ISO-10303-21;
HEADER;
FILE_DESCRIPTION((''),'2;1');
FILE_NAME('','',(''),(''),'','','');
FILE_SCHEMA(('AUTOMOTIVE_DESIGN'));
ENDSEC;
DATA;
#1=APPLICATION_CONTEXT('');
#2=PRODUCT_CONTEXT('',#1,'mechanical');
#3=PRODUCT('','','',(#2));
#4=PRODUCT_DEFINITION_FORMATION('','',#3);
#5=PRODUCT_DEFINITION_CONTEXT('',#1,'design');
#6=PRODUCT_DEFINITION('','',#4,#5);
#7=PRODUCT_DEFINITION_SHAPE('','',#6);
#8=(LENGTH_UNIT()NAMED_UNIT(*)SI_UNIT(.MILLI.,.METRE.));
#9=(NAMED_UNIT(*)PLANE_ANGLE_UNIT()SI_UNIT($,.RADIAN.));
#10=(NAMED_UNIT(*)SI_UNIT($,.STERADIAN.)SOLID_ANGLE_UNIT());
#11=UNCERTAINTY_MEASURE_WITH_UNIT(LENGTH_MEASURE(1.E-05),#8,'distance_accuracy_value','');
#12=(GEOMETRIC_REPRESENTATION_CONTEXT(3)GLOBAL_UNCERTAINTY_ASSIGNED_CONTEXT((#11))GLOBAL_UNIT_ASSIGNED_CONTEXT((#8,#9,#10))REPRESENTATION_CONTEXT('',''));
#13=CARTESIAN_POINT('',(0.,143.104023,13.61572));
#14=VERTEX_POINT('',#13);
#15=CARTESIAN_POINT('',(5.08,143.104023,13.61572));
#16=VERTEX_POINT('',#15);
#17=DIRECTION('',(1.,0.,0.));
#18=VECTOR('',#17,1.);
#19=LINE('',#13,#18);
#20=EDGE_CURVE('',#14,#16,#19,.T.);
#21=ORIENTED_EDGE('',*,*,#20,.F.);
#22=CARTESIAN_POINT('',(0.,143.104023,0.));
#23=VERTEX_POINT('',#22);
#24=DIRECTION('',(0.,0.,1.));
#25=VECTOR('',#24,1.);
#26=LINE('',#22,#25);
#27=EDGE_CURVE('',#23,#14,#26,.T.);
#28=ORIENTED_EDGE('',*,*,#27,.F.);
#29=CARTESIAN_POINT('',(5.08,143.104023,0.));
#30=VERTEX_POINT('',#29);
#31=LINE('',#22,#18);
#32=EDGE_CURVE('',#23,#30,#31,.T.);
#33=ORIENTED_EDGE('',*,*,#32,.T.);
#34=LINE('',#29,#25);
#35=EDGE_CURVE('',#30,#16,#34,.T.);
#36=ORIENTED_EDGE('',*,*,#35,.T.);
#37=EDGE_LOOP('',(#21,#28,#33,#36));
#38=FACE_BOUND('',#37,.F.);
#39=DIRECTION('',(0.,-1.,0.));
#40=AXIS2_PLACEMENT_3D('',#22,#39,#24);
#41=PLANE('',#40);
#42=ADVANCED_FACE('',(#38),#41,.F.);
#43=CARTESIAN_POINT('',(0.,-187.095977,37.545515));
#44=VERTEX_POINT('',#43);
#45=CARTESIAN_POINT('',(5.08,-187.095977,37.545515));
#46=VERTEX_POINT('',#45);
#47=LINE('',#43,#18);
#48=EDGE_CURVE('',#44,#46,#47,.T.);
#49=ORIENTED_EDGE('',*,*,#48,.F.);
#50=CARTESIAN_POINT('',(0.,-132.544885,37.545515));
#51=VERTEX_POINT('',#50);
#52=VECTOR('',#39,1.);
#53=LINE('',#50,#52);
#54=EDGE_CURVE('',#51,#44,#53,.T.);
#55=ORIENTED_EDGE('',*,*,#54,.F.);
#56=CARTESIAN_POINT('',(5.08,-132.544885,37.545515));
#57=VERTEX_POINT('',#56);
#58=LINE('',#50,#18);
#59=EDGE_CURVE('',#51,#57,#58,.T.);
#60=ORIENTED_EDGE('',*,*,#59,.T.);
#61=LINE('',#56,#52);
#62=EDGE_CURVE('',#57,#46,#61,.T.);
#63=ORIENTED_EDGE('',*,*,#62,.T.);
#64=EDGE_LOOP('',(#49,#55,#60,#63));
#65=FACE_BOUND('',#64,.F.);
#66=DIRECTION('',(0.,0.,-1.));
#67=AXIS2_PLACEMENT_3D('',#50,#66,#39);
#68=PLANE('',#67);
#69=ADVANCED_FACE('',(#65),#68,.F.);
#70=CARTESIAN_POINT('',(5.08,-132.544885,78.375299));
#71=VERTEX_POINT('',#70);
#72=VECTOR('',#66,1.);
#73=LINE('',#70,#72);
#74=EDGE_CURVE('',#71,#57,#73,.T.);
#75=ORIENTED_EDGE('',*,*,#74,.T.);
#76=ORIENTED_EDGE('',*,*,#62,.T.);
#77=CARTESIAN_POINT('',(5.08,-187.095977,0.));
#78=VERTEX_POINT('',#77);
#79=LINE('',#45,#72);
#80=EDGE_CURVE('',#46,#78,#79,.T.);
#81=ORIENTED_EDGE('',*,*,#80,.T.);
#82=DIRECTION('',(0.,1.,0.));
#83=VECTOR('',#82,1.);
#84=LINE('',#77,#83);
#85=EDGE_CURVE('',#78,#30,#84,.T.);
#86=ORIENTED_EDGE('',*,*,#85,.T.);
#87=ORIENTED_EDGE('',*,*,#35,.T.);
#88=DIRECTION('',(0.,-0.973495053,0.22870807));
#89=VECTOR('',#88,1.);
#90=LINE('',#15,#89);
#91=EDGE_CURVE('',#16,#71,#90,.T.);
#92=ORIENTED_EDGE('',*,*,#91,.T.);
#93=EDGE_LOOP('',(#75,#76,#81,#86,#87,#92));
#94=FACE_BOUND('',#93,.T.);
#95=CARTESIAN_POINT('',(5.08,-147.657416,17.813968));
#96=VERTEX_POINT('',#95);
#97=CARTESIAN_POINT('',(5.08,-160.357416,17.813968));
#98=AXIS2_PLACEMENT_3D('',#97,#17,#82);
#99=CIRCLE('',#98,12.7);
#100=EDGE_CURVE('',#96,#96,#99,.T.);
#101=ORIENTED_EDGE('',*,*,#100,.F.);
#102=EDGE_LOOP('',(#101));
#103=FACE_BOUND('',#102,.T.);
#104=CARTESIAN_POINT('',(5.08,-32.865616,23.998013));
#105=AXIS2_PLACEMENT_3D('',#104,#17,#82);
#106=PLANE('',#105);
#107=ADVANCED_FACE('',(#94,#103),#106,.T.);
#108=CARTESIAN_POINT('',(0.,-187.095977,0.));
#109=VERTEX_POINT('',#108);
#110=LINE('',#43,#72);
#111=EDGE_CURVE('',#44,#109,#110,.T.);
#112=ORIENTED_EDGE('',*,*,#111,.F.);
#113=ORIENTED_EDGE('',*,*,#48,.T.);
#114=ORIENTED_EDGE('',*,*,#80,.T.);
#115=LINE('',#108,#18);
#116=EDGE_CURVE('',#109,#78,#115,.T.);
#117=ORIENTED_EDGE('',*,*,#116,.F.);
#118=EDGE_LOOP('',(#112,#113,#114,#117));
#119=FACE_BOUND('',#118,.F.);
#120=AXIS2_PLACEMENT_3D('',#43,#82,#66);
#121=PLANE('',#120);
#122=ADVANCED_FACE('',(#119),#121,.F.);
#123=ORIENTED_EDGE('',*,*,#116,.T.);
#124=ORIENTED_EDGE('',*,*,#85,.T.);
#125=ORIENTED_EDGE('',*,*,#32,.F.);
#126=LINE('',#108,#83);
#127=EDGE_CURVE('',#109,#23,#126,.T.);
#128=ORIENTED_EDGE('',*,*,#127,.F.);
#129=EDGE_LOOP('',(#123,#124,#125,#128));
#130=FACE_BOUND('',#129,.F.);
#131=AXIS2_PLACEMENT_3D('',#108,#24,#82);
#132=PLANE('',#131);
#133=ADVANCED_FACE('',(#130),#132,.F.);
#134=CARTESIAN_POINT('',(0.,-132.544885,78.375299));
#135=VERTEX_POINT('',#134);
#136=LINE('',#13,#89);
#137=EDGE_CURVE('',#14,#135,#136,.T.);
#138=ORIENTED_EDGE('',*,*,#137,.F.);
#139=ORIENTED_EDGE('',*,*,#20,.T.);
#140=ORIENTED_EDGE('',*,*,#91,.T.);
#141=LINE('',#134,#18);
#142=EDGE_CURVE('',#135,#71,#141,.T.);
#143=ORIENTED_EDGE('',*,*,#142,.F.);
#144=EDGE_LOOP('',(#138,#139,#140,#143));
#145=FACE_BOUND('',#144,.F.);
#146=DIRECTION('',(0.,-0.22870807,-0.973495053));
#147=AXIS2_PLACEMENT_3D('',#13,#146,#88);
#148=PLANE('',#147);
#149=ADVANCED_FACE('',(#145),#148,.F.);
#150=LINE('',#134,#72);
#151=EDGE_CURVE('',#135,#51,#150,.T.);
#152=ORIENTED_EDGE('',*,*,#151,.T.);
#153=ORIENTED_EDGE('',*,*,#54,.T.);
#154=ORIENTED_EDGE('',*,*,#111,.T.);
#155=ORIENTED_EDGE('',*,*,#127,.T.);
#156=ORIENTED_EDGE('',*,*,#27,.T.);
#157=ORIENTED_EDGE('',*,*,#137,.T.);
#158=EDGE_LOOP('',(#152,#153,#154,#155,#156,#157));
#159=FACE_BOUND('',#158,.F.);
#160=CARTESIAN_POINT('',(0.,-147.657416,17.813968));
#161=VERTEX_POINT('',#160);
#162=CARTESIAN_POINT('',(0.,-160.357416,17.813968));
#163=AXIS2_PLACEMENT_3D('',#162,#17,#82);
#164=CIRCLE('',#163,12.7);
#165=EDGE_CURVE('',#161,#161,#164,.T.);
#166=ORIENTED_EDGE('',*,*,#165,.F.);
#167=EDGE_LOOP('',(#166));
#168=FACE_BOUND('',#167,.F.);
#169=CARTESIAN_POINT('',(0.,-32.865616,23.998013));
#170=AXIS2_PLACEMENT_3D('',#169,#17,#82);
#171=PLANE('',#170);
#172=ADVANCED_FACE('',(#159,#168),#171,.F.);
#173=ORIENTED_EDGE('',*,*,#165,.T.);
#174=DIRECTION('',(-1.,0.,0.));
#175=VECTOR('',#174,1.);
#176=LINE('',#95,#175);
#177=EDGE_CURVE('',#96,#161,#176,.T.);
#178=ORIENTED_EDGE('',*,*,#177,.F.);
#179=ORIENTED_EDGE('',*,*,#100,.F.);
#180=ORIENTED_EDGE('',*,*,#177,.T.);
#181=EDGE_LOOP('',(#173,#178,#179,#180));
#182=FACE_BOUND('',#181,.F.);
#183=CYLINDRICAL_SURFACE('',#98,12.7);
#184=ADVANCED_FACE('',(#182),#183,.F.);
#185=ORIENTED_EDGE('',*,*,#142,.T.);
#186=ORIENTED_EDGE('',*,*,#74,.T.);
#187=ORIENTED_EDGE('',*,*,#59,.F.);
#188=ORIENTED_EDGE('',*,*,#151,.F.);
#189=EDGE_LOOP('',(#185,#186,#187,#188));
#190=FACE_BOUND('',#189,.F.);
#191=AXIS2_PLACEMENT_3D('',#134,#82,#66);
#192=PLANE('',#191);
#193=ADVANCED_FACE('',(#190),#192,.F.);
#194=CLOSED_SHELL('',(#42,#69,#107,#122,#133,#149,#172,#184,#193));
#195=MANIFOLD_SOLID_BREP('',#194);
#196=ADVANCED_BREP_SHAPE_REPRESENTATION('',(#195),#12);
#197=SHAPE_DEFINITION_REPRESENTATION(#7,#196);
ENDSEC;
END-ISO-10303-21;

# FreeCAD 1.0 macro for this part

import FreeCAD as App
import Part
import Sketcher
Q = App.Units.Quantity

doc = App.newDocument("Part")
body = doc.addObject("PartDesign::Body", "Body")

sketch1 = body.newObject("Sketcher::SketchObject", "Sketch")
sketch1.AttachmentSupport = (doc.getObject("YZ_Plane"), [""])
sketch1.MapMode = "FlatFace"
sketch1.addGeometry(Part.LineSegment(App.Vector(143, 0, 0), App.Vector(143, 14, 0)), False)
sketch1.addGeometry(Part.LineSegment(App.Vector(143, 14, 0), App.Vector(-133, 78, 0)), False)
sketch1.addGeometry(Part.LineSegment(App.Vector(-133, 78, 0), App.Vector(-133, 38, 0)), False)
sketch1.addGeometry(Part.LineSegment(App.Vector(-133, 38, 0), App.Vector(-187, 38, 0)), False)
sketch1.addGeometry(Part.LineSegment(App.Vector(-187, 38, 0), App.Vector(-187, 0, 0)), False)
sketch1.addGeometry(Part.LineSegment(App.Vector(-187, 0, 0), App.Vector(143, 0, 0)), False)
sketch1.addConstraint(Sketcher.Constraint("Coincident", 0, 2, 1, 1))
sketch1.addConstraint(Sketcher.Constraint("Coincident", 1, 2, 2, 1))
sketch1.addConstraint(Sketcher.Constraint("Coincident", 2, 2, 3, 1))
sketch1.addConstraint(Sketcher.Constraint("Coincident", 3, 2, 4, 1))
sketch1.addConstraint(Sketcher.Constraint("Coincident", 4, 2, 5, 1))
sketch1.addConstraint(Sketcher.Constraint("Coincident", 5, 2, 0, 1))
sketch1.addConstraint(Sketcher.Constraint("Vertical", 0))
sketch1.addConstraint(Sketcher.Constraint("Vertical", 2))
sketch1.addConstraint(Sketcher.Constraint("Horizontal", 3))
sketch1.addConstraint(Sketcher.Constraint("Vertical", 4))
sketch1.addConstraint(Sketcher.Constraint("Horizontal", 5))
sketch1.addConstraint(Sketcher.Constraint("PointOnObject", 4, 2, -1))
sketch1.addConstraint(Sketcher.Constraint("DistanceX", 5, 1, 5, 2, Q("13 in")))
sketch1.addConstraint(Sketcher.Constraint("DistanceY", 0, 1, 0, 2, Q("13.61572 mm")))
sketch1.addConstraint(Sketcher.Constraint("DistanceY", -1, 1, 1, 2, Q("78.375299 mm")))
sketch1.addConstraint(Sketcher.Constraint("DistanceX", 3, 2, 3, 1, Q("54.551092 mm")))
sketch1.addConstraint(Sketcher.Constraint("DistanceY", 2, 2, 2, 1, Q("40.829784 mm")))
sketch1.addConstraint(Sketcher.Constraint("DistanceX", -1, 1, 0, 2, Q("143.104023 mm")))
pad1 = body.newObject("PartDesign::Pad", "Pad")
pad1.Profile = sketch1
pad1.Length = Q("0.2 in")

sketch2 = body.newObject("Sketcher::SketchObject", "Sketch001")
sketch2.AttachmentSupport = (doc.getObject("YZ_Plane"), [""])
sketch2.MapMode = "FlatFace"
sketch2.AttachmentOffset = App.Placement(App.Vector(0, 0, 0.2 * 25.4), App.Rotation())
sketch2.addGeometry(Part.Circle(App.Vector(-160, 18, 0), App.Vector(0, 0, 1), 13), False)
sketch2.addConstraint(Sketcher.Constraint("Diameter", 0, Q("1 in")))
sketch2.addConstraint(Sketcher.Constraint("DistanceX", 0, 3, -1, 1, Q("160.357416 mm")))
sketch2.addConstraint(Sketcher.Constraint("DistanceY", -1, 1, 0, 3, Q("17.813968 mm")))
pocket1 = body.newObject("PartDesign::Pocket", "Pocket")
pocket1.Profile = sketch2
pocket1.Length = Q("0.5 in")

doc.recompute()
